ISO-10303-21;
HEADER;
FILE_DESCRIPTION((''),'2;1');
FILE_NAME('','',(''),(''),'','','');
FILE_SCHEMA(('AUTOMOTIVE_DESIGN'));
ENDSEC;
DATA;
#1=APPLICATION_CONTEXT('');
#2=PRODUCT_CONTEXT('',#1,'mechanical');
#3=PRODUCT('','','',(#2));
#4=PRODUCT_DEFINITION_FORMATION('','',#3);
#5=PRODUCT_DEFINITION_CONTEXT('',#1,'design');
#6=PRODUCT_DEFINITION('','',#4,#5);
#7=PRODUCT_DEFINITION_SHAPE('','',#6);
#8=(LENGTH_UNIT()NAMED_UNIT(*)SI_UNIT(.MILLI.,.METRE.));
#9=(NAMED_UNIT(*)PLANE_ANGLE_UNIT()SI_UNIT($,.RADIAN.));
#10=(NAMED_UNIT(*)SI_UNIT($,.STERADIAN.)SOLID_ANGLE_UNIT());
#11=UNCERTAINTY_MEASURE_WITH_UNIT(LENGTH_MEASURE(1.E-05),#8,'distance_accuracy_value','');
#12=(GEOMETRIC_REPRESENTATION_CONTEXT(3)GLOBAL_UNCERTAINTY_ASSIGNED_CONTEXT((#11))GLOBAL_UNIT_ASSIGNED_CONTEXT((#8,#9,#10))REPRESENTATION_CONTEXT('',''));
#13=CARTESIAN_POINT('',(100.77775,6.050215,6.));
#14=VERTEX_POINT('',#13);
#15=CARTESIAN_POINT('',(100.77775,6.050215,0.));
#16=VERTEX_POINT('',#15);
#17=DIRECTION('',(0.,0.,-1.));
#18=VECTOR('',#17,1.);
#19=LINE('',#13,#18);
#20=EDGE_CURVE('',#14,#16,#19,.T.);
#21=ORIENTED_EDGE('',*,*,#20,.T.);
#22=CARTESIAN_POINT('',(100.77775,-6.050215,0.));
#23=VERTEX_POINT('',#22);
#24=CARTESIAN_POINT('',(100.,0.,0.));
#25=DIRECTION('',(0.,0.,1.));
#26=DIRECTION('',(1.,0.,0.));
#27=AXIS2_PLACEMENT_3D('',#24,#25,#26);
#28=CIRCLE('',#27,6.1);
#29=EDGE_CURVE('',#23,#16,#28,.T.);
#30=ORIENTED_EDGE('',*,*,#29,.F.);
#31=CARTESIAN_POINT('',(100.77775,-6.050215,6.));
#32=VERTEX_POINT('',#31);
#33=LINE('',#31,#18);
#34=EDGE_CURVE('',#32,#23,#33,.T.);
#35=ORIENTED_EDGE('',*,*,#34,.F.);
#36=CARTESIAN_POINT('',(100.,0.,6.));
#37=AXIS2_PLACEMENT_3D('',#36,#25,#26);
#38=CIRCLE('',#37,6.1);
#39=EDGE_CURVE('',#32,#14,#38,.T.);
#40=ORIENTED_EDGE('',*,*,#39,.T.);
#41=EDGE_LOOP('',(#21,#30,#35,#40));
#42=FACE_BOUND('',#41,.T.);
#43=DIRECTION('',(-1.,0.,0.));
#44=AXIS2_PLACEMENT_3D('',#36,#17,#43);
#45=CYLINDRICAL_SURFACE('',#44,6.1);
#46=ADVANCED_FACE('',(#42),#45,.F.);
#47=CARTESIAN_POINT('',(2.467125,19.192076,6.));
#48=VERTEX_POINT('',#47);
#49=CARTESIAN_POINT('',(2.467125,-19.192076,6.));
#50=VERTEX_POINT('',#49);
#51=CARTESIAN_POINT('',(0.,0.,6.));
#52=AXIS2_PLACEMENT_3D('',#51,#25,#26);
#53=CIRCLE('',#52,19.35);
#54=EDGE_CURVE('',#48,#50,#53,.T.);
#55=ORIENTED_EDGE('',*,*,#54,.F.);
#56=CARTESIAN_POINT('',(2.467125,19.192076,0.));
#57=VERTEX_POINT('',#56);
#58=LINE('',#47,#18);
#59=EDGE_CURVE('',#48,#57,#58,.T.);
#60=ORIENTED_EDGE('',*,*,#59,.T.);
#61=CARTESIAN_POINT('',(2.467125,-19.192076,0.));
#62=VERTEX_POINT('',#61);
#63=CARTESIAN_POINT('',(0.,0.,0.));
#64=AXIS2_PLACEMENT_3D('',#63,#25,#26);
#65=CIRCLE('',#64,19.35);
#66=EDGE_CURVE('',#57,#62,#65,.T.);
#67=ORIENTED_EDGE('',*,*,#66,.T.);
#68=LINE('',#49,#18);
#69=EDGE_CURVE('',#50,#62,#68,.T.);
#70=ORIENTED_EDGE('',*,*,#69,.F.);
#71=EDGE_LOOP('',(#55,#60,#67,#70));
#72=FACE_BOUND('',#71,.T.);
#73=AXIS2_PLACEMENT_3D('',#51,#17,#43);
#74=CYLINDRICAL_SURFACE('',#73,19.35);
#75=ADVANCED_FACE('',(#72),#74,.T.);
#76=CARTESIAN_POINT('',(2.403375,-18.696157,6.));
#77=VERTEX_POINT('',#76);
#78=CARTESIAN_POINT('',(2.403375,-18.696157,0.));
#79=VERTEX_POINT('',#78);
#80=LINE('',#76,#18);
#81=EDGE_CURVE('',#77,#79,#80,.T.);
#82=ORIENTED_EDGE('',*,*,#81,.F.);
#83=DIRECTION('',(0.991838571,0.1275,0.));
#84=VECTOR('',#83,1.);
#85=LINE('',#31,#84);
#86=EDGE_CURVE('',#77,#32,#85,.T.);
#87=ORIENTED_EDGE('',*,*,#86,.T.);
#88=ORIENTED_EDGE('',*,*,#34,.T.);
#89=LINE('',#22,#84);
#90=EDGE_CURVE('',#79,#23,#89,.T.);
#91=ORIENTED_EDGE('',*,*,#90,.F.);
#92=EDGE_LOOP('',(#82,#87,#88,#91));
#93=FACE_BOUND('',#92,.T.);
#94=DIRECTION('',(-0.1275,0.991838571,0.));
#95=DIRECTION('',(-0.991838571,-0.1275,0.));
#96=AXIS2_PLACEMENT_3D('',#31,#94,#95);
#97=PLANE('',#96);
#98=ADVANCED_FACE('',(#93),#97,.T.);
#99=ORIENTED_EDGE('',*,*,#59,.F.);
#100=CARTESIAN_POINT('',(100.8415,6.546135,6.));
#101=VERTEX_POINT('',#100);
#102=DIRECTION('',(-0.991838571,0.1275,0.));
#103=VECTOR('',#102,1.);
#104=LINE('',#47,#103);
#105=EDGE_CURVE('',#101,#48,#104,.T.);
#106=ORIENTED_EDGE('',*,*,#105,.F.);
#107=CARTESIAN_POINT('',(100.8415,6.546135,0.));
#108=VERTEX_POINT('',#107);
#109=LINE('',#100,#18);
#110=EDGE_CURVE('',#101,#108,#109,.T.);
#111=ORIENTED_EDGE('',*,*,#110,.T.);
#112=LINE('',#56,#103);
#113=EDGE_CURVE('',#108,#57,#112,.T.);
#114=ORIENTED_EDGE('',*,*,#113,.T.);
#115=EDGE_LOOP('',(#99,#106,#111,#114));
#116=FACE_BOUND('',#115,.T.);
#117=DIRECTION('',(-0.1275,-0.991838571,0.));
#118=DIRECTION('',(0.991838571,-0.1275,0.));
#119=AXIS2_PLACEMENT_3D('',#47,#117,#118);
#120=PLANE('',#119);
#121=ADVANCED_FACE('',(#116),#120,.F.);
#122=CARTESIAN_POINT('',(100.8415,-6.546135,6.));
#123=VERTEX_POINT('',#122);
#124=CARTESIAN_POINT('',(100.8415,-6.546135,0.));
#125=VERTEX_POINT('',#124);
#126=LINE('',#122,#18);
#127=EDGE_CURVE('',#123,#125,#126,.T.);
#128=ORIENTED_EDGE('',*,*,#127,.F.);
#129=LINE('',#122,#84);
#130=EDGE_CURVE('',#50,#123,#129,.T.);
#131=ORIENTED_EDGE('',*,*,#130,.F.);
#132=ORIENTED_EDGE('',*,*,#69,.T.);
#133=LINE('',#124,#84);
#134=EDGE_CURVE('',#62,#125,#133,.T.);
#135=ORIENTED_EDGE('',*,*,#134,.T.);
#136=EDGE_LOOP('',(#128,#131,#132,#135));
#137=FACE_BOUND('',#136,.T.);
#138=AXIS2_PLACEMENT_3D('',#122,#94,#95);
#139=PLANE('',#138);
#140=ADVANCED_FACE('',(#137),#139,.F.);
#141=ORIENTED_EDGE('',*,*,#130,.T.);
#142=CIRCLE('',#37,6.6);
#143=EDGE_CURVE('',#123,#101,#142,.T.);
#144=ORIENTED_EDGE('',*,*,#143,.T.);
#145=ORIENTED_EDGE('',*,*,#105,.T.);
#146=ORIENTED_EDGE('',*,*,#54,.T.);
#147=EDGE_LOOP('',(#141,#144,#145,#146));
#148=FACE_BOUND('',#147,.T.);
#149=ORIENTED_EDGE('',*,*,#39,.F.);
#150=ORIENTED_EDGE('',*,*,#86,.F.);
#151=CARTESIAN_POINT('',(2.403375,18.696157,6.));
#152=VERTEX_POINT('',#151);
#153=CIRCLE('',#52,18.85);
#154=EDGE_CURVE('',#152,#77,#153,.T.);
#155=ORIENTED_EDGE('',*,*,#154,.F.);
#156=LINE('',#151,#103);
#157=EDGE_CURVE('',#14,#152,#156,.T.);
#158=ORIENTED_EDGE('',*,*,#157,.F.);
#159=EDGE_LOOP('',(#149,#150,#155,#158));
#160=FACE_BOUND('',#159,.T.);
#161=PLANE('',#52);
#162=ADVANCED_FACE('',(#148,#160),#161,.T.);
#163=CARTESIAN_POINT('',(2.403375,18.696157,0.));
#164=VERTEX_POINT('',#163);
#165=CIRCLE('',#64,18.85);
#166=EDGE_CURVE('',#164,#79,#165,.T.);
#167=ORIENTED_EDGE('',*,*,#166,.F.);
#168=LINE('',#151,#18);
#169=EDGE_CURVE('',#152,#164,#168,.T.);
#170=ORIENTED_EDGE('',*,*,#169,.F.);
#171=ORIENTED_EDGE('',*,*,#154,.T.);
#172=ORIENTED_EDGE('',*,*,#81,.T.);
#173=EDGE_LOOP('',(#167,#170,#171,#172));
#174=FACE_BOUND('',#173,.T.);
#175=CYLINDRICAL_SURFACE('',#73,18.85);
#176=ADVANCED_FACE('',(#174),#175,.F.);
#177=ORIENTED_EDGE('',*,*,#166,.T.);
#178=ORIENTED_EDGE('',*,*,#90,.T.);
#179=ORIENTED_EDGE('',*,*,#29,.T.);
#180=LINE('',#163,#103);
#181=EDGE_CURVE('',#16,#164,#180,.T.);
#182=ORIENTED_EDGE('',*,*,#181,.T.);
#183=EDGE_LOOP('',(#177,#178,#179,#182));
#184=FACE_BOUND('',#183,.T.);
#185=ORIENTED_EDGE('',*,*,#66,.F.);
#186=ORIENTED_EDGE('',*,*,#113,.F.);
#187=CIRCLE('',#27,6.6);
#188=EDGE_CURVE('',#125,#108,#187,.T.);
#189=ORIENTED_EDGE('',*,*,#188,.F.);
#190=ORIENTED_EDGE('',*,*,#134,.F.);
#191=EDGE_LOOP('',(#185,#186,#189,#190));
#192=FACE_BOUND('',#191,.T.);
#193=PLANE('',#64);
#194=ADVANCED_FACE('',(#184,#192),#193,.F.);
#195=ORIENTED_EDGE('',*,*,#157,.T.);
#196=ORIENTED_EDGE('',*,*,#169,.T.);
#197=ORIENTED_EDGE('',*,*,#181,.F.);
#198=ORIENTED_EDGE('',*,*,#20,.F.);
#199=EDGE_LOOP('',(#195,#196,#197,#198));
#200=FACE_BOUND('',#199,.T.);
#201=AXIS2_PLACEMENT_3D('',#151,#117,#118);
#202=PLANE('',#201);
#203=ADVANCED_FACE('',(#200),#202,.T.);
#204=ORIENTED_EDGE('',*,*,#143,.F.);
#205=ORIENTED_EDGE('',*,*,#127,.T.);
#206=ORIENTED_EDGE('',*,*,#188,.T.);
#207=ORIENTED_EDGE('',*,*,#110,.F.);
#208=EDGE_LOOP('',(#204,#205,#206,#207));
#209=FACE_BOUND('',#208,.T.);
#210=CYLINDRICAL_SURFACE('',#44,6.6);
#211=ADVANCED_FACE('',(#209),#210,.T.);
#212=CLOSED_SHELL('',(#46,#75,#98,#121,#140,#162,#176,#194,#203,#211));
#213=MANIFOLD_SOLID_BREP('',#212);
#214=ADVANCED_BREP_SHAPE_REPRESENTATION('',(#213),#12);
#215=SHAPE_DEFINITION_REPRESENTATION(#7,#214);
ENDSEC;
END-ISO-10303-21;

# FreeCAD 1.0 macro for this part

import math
import FreeCAD as App
import Part
import Sketcher

V = App.Vector
Q = App.Units.Quantity

doc = App.newDocument("Part")
body = doc.addObject("PartDesign::Body", "Body")

# Sketch on XY plane
sketch1 = body.newObject("Sketcher::SketchObject", "Sketch")
sketch1.AttachmentSupport = (doc.getObject("XY_Plane"), [""])
sketch1.MapMode = "FlatFace"
sketch1.addGeometry([
    Part.LineSegment(V(2.467125, -19.192076, 0), V(100.8415, -6.546135, 0)),  # 0
    Part.ArcOfCircle(Part.Circle(V(100, 0, 0), V(0, 0, 1), 6.6), math.radians(-82.674849), math.radians(82.674849)),  # 1
    Part.LineSegment(V(100.8415, 6.546135, 0), V(2.467125, 19.192076, 0)),  # 2
    Part.ArcOfCircle(Part.Circle(V(0, 0, 0), V(0, 0, 1), 19.35), math.radians(82.674849), math.radians(277.325151)),  # 3
    Part.LineSegment(V(2.403375, 18.696157, 0), V(100.77775, 6.050215, 0)),  # 4
    Part.ArcOfCircle(Part.Circle(V(100, 0, 0), V(0, 0, 1), 6.1), math.radians(-82.674849), math.radians(82.674849)),  # 5
    Part.LineSegment(V(100.77775, -6.050215, 0), V(2.403375, -18.696157, 0)),  # 6
    Part.ArcOfCircle(Part.Circle(V(0, 0, 0), V(0, 0, 1), 18.85), math.radians(82.674849), math.radians(277.325151)),  # 7
], False)
sketch1.addConstraint([
    Sketcher.Constraint("Tangent", 0, 2, 1, 1),
    Sketcher.Constraint("Tangent", 1, 2, 2, 1),
    Sketcher.Constraint("Tangent", 2, 2, 3, 1),
    Sketcher.Constraint("Tangent", 3, 2, 0, 1),
    Sketcher.Constraint("Tangent", 4, 2, 5, 2),
    Sketcher.Constraint("Tangent", 5, 1, 6, 1),
    Sketcher.Constraint("Tangent", 6, 2, 7, 2),
    Sketcher.Constraint("Tangent", 7, 1, 4, 1),
    Sketcher.Constraint("Coincident", 3, 3, -1, 1),
    Sketcher.Constraint("Coincident", 7, 3, -1, 1),
    Sketcher.Constraint("Coincident", 5, 3, 1, 3),
    Sketcher.Constraint("PointOnObject", 1, 3, -1),
    Sketcher.Constraint("Parallel", 2, 4),
    Sketcher.Constraint("Radius", 1, Q("6.6 mm")),
    Sketcher.Constraint("Radius", 5, Q("6.1 mm")),
    Sketcher.Constraint("Radius", 3, Q("19.35 mm")),
    Sketcher.Constraint("DistanceX", -1, 1, 1, 3, Q("100 mm")),
])
pad1 = body.newObject("PartDesign::Pad", "Pad")
pad1.Profile = sketch1
pad1.Length = 6

doc.recompute()
